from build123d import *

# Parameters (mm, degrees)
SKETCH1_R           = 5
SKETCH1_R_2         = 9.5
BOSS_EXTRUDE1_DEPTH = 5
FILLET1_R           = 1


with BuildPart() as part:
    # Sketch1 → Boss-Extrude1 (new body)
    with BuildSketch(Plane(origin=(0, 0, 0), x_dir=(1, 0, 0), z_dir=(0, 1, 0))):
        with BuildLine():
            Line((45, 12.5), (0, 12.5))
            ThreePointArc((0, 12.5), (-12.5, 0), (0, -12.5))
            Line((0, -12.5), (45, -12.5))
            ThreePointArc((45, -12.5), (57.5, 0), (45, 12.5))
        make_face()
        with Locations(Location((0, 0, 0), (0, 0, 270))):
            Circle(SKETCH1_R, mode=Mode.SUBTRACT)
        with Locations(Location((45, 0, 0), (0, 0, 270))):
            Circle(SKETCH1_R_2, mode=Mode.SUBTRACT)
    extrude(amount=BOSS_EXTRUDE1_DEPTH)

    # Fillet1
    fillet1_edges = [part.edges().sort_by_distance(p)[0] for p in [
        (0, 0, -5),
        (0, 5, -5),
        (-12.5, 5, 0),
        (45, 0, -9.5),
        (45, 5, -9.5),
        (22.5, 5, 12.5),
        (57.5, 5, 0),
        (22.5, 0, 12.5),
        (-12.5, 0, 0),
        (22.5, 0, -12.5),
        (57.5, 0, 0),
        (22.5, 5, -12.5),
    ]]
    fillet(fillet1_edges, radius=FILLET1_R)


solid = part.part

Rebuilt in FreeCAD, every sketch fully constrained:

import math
import FreeCAD as App
import Part
import Sketcher
from FreeCAD import Vector


def edges_at(feature, points):
    """Names of the edges that pass closest to the given points."""
    edges = feature.Shape.Edges
    near = lambda p: min(range(len(edges)), key=lambda i: edges[i].distToShape(Part.Vertex(*p))[0])
    return sorted({f"Edge{near(p) + 1}" for p in points})

doc = App.newDocument("Part")
body = doc.addObject("PartDesign::Body", "Body")

sketch1 = body.newObject("Sketcher::SketchObject", "Sketch")
sketch1.AttachmentSupport = (doc.getObject("XZ_Plane"), [""])
sketch1.MapMode = "FlatFace"
sketch1.addGeometry(Part.LineSegment(Vector(45, -12.5, 0), Vector(0, -12.5, 0)), False)
sketch1.addGeometry(Part.ArcOfCircle(Part.Circle(Vector(0, 0, 0), Vector(0, 0, 1), 12.5), math.radians(90), math.radians(270)), False)
sketch1.addGeometry(Part.LineSegment(Vector(0, 12.5, 0), Vector(45, 12.5, 0)), False)
sketch1.addGeometry(Part.ArcOfCircle(Part.Circle(Vector(45, 0, 0), Vector(0, 0, 1), 12.5), math.radians(-90), math.radians(90)), False)
sketch1.addGeometry(Part.Circle(Vector(0, 0, 0), Vector(0, 0, 1), 5), False)
sketch1.addGeometry(Part.Circle(Vector(45, 0, 0), Vector(0, 0, 1), 9.5), False)
sketch1.addConstraint(Sketcher.Constraint("Tangent", 0, 2, 1, 2))
sketch1.addConstraint(Sketcher.Constraint("Tangent", 1, 1, 2, 1))
sketch1.addConstraint(Sketcher.Constraint("Tangent", 2, 2, 3, 2))
sketch1.addConstraint(Sketcher.Constraint("Tangent", 3, 1, 0, 1))
sketch1.addConstraint(Sketcher.Constraint("Horizontal", 0))
sketch1.addConstraint(Sketcher.Constraint("Horizontal", 2))
sketch1.addConstraint(Sketcher.Constraint("Coincident", 1, 3, -1, 1))
sketch1.addConstraint(Sketcher.Constraint("Coincident", 4, 3, -1, 1))
sketch1.addConstraint(Sketcher.Constraint("Coincident", 5, 3, 3, 3))
sketch1.addConstraint(Sketcher.Constraint("Diameter", 4, 10.0))
sketch1.addConstraint(Sketcher.Constraint("Diameter", 5, 19.0))
sketch1.addConstraint(Sketcher.Constraint("Radius", 1, 12.5))
sketch1.addConstraint(Sketcher.Constraint("DistanceX", 0, 2, 0, 1, 45.0))
pad1 = body.newObject("PartDesign::Pad", "Pad")
pad1.Profile = sketch1
pad1.Length = 5
pad1.Reversed = True
doc.recompute()

fillet = body.newObject("PartDesign::Fillet", "Fillet")
fillet.Base = (pad1, edges_at(pad1, [
    (0, 0, -5),
    (0, 5, -5),
    (-12.5, 5, 0),
    (45, 0, -9.5),
    (45, 5, -9.5),
    (22.5, 5, 12.5),
    (57.5, 5, 0),
    (22.5, 0, 12.5),
    (-12.5, 0, 0),
    (22.5, 0, -12.5),
    (57.5, 0, 0),
    (22.5, 5, -12.5),
]))
fillet.Radius = 1

doc.recompute()
